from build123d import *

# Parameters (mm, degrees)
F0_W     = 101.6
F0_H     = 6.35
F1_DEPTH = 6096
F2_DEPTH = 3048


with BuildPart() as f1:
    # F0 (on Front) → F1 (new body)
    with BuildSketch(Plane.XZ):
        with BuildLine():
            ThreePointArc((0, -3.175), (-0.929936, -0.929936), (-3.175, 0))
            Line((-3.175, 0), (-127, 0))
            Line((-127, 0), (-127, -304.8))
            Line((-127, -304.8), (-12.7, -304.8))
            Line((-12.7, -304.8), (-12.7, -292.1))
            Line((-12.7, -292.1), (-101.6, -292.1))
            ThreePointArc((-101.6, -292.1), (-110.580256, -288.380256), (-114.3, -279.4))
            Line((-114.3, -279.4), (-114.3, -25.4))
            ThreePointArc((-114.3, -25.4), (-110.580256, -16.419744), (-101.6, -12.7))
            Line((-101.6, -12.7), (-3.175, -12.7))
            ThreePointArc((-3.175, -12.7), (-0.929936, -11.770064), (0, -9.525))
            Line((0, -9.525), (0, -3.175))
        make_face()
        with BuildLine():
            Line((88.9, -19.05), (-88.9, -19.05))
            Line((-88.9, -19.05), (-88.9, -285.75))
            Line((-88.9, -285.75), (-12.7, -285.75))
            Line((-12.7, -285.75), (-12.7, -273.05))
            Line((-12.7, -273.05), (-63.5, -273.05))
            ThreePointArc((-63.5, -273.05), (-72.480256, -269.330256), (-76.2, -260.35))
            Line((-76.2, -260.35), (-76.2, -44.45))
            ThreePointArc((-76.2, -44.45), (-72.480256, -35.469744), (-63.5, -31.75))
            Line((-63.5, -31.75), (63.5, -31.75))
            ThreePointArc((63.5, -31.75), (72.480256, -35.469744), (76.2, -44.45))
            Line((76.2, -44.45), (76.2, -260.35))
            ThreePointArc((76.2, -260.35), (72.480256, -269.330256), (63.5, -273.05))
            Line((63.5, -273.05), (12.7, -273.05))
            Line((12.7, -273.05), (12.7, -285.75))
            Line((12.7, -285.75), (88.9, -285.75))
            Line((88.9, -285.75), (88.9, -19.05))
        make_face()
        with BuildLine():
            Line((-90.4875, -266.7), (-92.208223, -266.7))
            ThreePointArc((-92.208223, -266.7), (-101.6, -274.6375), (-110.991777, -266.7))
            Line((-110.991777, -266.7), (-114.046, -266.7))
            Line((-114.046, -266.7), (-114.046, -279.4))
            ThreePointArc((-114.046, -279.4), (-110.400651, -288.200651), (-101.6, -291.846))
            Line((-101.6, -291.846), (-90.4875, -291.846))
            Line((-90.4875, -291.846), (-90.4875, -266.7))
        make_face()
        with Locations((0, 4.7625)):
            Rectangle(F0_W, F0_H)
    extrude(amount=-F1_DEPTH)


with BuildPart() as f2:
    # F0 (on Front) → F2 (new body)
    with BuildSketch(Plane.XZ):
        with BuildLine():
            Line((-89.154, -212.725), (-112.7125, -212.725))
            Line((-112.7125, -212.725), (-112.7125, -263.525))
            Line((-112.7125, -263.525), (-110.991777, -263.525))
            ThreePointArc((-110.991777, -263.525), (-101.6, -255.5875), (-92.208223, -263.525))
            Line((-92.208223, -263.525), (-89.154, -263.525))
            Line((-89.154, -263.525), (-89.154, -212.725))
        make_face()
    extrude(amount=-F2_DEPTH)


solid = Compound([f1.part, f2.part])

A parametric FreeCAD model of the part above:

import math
import FreeCAD as App
import Part
import Sketcher
from FreeCAD import Vector
Q = App.Units.Quantity


def add_polygon(sketch, points):
    """Adds a closed chain of lines whose ends are joined by coincident constraints."""
    first, n = sketch.GeometryCount, len(points)
    for a, b in zip(points, points[1:] + points[:1]):
        sketch.addGeometry(Part.LineSegment(App.Vector(*a, 0), App.Vector(*b, 0)), False)
    for i in range(n):
        sketch.addConstraint(Sketcher.Constraint("Coincident", first + i, 2, first + (i + 1) % n, 1))

doc = App.newDocument("Part")
body = doc.addObject("PartDesign::Body", "Body")
body.AllowCompound = True

sketch1 = doc.addObject("Sketcher::SketchObject", "Sketch")
body.addObject(sketch1)
sketch1.AttachmentSupport = (doc.XZ_Plane, [""])
sketch1.MapMode = "FlatFace"
sketch1.addGeometry(Part.ArcOfCircle(Part.Circle(Vector(-3.175, -3.175, 0), Vector(0, 0, 1), 3.175), math.radians(0.000002), math.radians(89.999998)), False)
sketch1.addGeometry(Part.LineSegment(Vector(-3.175, 0, 0), Vector(-127, 0, 0)), False)
sketch1.addGeometry(Part.LineSegment(Vector(-127, 0, 0), Vector(-127, -304.8, 0)), False)
sketch1.addGeometry(Part.LineSegment(Vector(-127, -304.8, 0), Vector(-12.7, -304.8, 0)), False)
sketch1.addGeometry(Part.LineSegment(Vector(-12.7, -304.8, 0), Vector(-12.7, -292.1, 0)), False)
sketch1.addGeometry(Part.LineSegment(Vector(-12.7, -292.1, 0), Vector(-101.6, -292.1, 0)), False)
sketch1.addGeometry(Part.ArcOfCircle(Part.Circle(Vector(-101.6, -279.4, 0), Vector(0, 0, 1), 12.7), math.radians(-179.999998), math.radians(-90.000002)), False)
sketch1.addGeometry(Part.LineSegment(Vector(-114.3, -279.4, 0), Vector(-114.3, -25.4, 0)), False)
sketch1.addGeometry(Part.ArcOfCircle(Part.Circle(Vector(-101.6, -25.4, 0), Vector(0, 0, 1), 12.7), math.radians(90.000002), math.radians(179.999998)), False)
sketch1.addGeometry(Part.LineSegment(Vector(-101.6, -12.7, 0), Vector(-3.175, -12.7, 0)), False)
sketch1.addGeometry(Part.ArcOfCircle(Part.Circle(Vector(-3.175, -9.525, 0), Vector(0, 0, 1), 3.175), math.radians(-89.999998), math.radians(-0.000002)), False)
sketch1.addGeometry(Part.LineSegment(Vector(0, -9.525, 0), Vector(0, -3.175, 0)), False)
sketch1.addGeometry(Part.LineSegment(Vector(88.9, -19.05, 0), Vector(-88.9, -19.05, 0)), False)
sketch1.addGeometry(Part.LineSegment(Vector(-88.9, -19.05, 0), Vector(-88.9, -285.75, 0)), False)
sketch1.addGeometry(Part.LineSegment(Vector(-88.9, -285.75, 0), Vector(-12.7, -285.75, 0)), False)
sketch1.addGeometry(Part.LineSegment(Vector(-12.7, -285.75, 0), Vector(-12.7, -273.05, 0)), False)
sketch1.addGeometry(Part.LineSegment(Vector(-12.7, -273.05, 0), Vector(-63.5, -273.05, 0)), False)
sketch1.addGeometry(Part.ArcOfCircle(Part.Circle(Vector(-63.5, -260.35, 0), Vector(0, 0, 1), 12.7), math.radians(-179.999998), math.radians(-90.000002)), False)
sketch1.addGeometry(Part.LineSegment(Vector(-76.2, -260.35, 0), Vector(-76.2, -44.45, 0)), False)
sketch1.addGeometry(Part.ArcOfCircle(Part.Circle(Vector(-63.5, -44.45, 0), Vector(0, 0, 1), 12.7), math.radians(90.000002), math.radians(179.999998)), False)
sketch1.addGeometry(Part.LineSegment(Vector(-63.5, -31.75, 0), Vector(63.5, -31.75, 0)), False)
sketch1.addGeometry(Part.ArcOfCircle(Part.Circle(Vector(63.5, -44.45, 0), Vector(0, 0, 1), 12.7), math.radians(0.000002), math.radians(89.999998)), False)
sketch1.addGeometry(Part.LineSegment(Vector(76.2, -44.45, 0), Vector(76.2, -260.35, 0)), False)
sketch1.addGeometry(Part.ArcOfCircle(Part.Circle(Vector(63.5, -260.35, 0), Vector(0, 0, 1), 12.7), math.radians(-89.999998), math.radians(-0.000002)), False)
sketch1.addGeometry(Part.LineSegment(Vector(63.5, -273.05, 0), Vector(12.7, -273.05, 0)), False)
sketch1.addGeometry(Part.LineSegment(Vector(12.7, -273.05, 0), Vector(12.7, -285.75, 0)), False)
sketch1.addGeometry(Part.LineSegment(Vector(12.7, -285.75, 0), Vector(88.9, -285.75, 0)), False)
sketch1.addGeometry(Part.LineSegment(Vector(88.9, -285.75, 0), Vector(88.9, -19.05, 0)), False)
sketch1.addGeometry(Part.LineSegment(Vector(-90.4875, -266.7, 0), Vector(-92.208223, -266.7, 0)), False)
sketch1.addGeometry(Part.ArcOfCircle(Part.Circle(Vector(-101.6, -265.1125, 0), Vector(0, 0, 1), 9.525), math.radians(-170.40593), math.radians(-9.59407)), False)
sketch1.addGeometry(Part.LineSegment(Vector(-110.991777, -266.7, 0), Vector(-114.046, -266.7, 0)), False)
sketch1.addGeometry(Part.LineSegment(Vector(-114.046, -266.7, 0), Vector(-114.046, -279.4, 0)), False)
sketch1.addGeometry(Part.ArcOfCircle(Part.Circle(Vector(-101.6, -279.4, 0), Vector(0, 0, 1), 12.446), math.radians(180), math.radians(270)), False)
sketch1.addGeometry(Part.LineSegment(Vector(-101.6, -291.846, 0), Vector(-90.4875, -291.846, 0)), False)
sketch1.addGeometry(Part.LineSegment(Vector(-90.4875, -291.846, 0), Vector(-90.4875, -266.7, 0)), False)
add_polygon(sketch1, [(-50.8, 7.9375), (-50.8, 1.5875), (50.8, 1.5875), (50.8, 7.9375)])
sketch1.addConstraint(Sketcher.Constraint("Tangent", 0, 2, 1, 1))
sketch1.addConstraint(Sketcher.Constraint("Coincident", 1, 2, 2, 1))
sketch1.addConstraint(Sketcher.Constraint("Coincident", 2, 2, 3, 1))
sketch1.addConstraint(Sketcher.Constraint("Coincident", 3, 2, 4, 1))
sketch1.addConstraint(Sketcher.Constraint("Coincident", 4, 2, 5, 1))
sketch1.addConstraint(Sketcher.Constraint("Tangent", 5, 2, 6, 2))
sketch1.addConstraint(Sketcher.Constraint("Tangent", 6, 1, 7, 1))
sketch1.addConstraint(Sketcher.Constraint("Tangent", 7, 2, 8, 2))
sketch1.addConstraint(Sketcher.Constraint("Tangent", 8, 1, 9, 1))
sketch1.addConstraint(Sketcher.Constraint("Tangent", 9, 2, 10, 1))
sketch1.addConstraint(Sketcher.Constraint("Tangent", 10, 2, 11, 1))
sketch1.addConstraint(Sketcher.Constraint("Tangent", 11, 2, 0, 1))
sketch1.addConstraint(Sketcher.Constraint("Coincident", 12, 2, 13, 1))
sketch1.addConstraint(Sketcher.Constraint("Coincident", 13, 2, 14, 1))
sketch1.addConstraint(Sketcher.Constraint("Coincident", 14, 2, 15, 1))
sketch1.addConstraint(Sketcher.Constraint("Coincident", 15, 2, 16, 1))
sketch1.addConstraint(Sketcher.Constraint("Tangent", 16, 2, 17, 2))
sketch1.addConstraint(Sketcher.Constraint("Tangent", 17, 1, 18, 1))
sketch1.addConstraint(Sketcher.Constraint("Tangent", 18, 2, 19, 2))
sketch1.addConstraint(Sketcher.Constraint("Tangent", 19, 1, 20, 1))
sketch1.addConstraint(Sketcher.Constraint("Tangent", 20, 2, 21, 2))
sketch1.addConstraint(Sketcher.Constraint("Tangent", 21, 1, 22, 1))
sketch1.addConstraint(Sketcher.Constraint("Tangent", 22, 2, 23, 2))
sketch1.addConstraint(Sketcher.Constraint("Tangent", 23, 1, 24, 1))
sketch1.addConstraint(Sketcher.Constraint("Coincident", 24, 2, 25, 1))
sketch1.addConstraint(Sketcher.Constraint("Coincident", 25, 2, 26, 1))
sketch1.addConstraint(Sketcher.Constraint("Coincident", 26, 2, 27, 1))
sketch1.addConstraint(Sketcher.Constraint("Coincident", 27, 2, 12, 1))
sketch1.addConstraint(Sketcher.Constraint("Coincident", 28, 2, 29, 2))
sketch1.addConstraint(Sketcher.Constraint("Coincident", 29, 1, 30, 1))
sketch1.addConstraint(Sketcher.Constraint("Coincident", 30, 2, 31, 1))
sketch1.addConstraint(Sketcher.Constraint("Tangent", 31, 2, 32, 1))
sketch1.addConstraint(Sketcher.Constraint("Tangent", 32, 2, 33, 1))
sketch1.addConstraint(Sketcher.Constraint("Coincident", 33, 2, 34, 1))
sketch1.addConstraint(Sketcher.Constraint("Coincident", 34, 2, 28, 1))
sketch1.addConstraint(Sketcher.Constraint("Horizontal", 1))
sketch1.addConstraint(Sketcher.Constraint("Vertical", 2))
sketch1.addConstraint(Sketcher.Constraint("Horizontal", 3))
sketch1.addConstraint(Sketcher.Constraint("Vertical", 4))
sketch1.addConstraint(Sketcher.Constraint("Horizontal", 5))
sketch1.addConstraint(Sketcher.Constraint("Vertical", 7))
sketch1.addConstraint(Sketcher.Constraint("Horizontal", 9))
sketch1.addConstraint(Sketcher.Constraint("Vertical", 11))
sketch1.addConstraint(Sketcher.Constraint("Horizontal", 12))
sketch1.addConstraint(Sketcher.Constraint("Vertical", 13))
sketch1.addConstraint(Sketcher.Constraint("Horizontal", 14))
sketch1.addConstraint(Sketcher.Constraint("Vertical", 15))
sketch1.addConstraint(Sketcher.Constraint("Horizontal", 16))
sketch1.addConstraint(Sketcher.Constraint("Vertical", 18))
sketch1.addConstraint(Sketcher.Constraint("Horizontal", 20))
sketch1.addConstraint(Sketcher.Constraint("Vertical", 22))
sketch1.addConstraint(Sketcher.Constraint("Horizontal", 24))
sketch1.addConstraint(Sketcher.Constraint("Vertical", 25))
sketch1.addConstraint(Sketcher.Constraint("Horizontal", 26))
sketch1.addConstraint(Sketcher.Constraint("Vertical", 27))
sketch1.addConstraint(Sketcher.Constraint("Horizontal", 28))
sketch1.addConstraint(Sketcher.Constraint("Horizontal", 30))
sketch1.addConstraint(Sketcher.Constraint("Vertical", 31))
sketch1.addConstraint(Sketcher.Constraint("Horizontal", 33))
sketch1.addConstraint(Sketcher.Constraint("Vertical", 34))
sketch1.addConstraint(Sketcher.Constraint("Vertical", 35))
sketch1.addConstraint(Sketcher.Constraint("Horizontal", 36))
sketch1.addConstraint(Sketcher.Constraint("Vertical", 37))
sketch1.addConstraint(Sketcher.Constraint("Horizontal", 38))
sketch1.addConstraint(Sketcher.Constraint("Coincident", 32, 3, 6, 3))
sketch1.addConstraint(Sketcher.Constraint("Equal", 6, 8))
sketch1.addConstraint(Sketcher.Constraint("Equal", 0, 10))
sketch1.addConstraint(Sketcher.Constraint("Equal", 8, 17))
sketch1.addConstraint(Sketcher.Constraint("Equal", 17, 19))
sketch1.addConstraint(Sketcher.Constraint("Equal", 19, 21))
sketch1.addConstraint(Sketcher.Constraint("Equal", 21, 23))
sketch1.addConstraint(Sketcher.Constraint("Symmetric", 17, 3, 23, 3, -2))
sketch1.addConstraint(Sketcher.Constraint("Symmetric", 14, 2, 25, 2, -2))
sketch1.addConstraint(Sketcher.Constraint("PointOnObject", 0, 2, -1))
sketch1.addConstraint(Sketcher.Constraint("PointOnObject", 10, 2, -2))
sketch1.addConstraint(Sketcher.Constraint("Horizontal", 28, 2, 29, 1))
sketch1.addConstraint(Sketcher.Constraint("Vertical", 8, 3, 29, 3))
sketch1.addConstraint(Sketcher.Constraint("Vertical", 4, 2, 14, 2))
sketch1.addConstraint(Sketcher.Constraint("Equal", 14, 26))
sketch1.addConstraint(Sketcher.Constraint("Equal", 4, 15))
sketch1.addConstraint(Sketcher.Constraint("Equal", 25, 31))
sketch1.addConstraint(Sketcher.Constraint("Equal", 11, 35))
sketch1.addConstraint(Sketcher.Constraint("Radius", 6, Q("0.5 in")))
sketch1.addConstraint(Sketcher.Constraint("DistanceX", 12, 2, 12, 1, Q("7 in")))
sketch1.addConstraint(Sketcher.Constraint("DistanceX", 14, 1, 14, 2, Q("3 in")))
sketch1.addConstraint(Sketcher.Constraint("DistanceX", 16, 2, 16, 1, Q("2 in")))
sketch1.addConstraint(Sketcher.Constraint("DistanceX", 36, 1, 36, 2, Q("4 in")))
sketch1.addConstraint(Sketcher.Constraint("DistanceY", 2, 2, 2, 1, Q("12 in")))
sketch1.addConstraint(Sketcher.Constraint("DistanceY", 7, 1, 7, 2, Q("10 in")))
sketch1.addConstraint(Sketcher.Constraint("Radius", 32, Q("0.49 in")))
sketch1.addConstraint(Sketcher.Constraint("DistanceX", 3, 1, 3, 2, Q("4.5 in")))
sketch1.addConstraint(Sketcher.Constraint("DistanceX", 5, 2, 5, 1, Q("3.5 in")))
sketch1.addConstraint(Sketcher.Constraint("DistanceY", 4, 1, 4, 2, Q("0.5 in")))
sketch1.addConstraint(Sketcher.Constraint("DistanceY", 13, 2, 13, 1, Q("10.5 in")))
sketch1.addConstraint(Sketcher.Constraint("DistanceY", 18, 1, 18, 2, Q("8.5 in")))
sketch1.addConstraint(Sketcher.Constraint("DistanceX", 35, 2, -1, 1, Q("2 in")))
sketch1.addConstraint(Sketcher.Constraint("Radius", 0, Q("0.125 in")))
sketch1.addConstraint(Sketcher.Constraint("Radius", 29, Q("0.375 in")))
sketch1.addConstraint(Sketcher.Constraint("DistanceX", 33, 1, 33, 2, Q("0.4375 in")))
sketch1.addConstraint(Sketcher.Constraint("DistanceY", 17, 3, -1, 1, Q("10.25 in")))
sketch1.addConstraint(Sketcher.Constraint("DistanceY", 29, 3, -1, 1, Q("10.4375 in")))
sketch1.addConstraint(Sketcher.Constraint("DistanceY", -1, 1, 35, 2, Q("0.0625 in")))
pad1 = doc.addObject("PartDesign::Pad", "Pad")
body.addObject(pad1)
pad1.Profile = sketch1
pad1.Length = Q("240 in")
pad1.Reversed = True
body2 = doc.addObject("PartDesign::Body", "Body001")

sketch2 = doc.addObject("Sketcher::SketchObject", "Sketch001")
body2.addObject(sketch2)
sketch2.AttachmentSupport = (doc.getObject("XZ_Plane001"), [""])
sketch2.MapMode = "FlatFace"
sketch2.addGeometry(Part.LineSegment(Vector(-89.154, -212.725, 0), Vector(-112.7125, -212.725, 0)), False)
sketch2.addGeometry(Part.LineSegment(Vector(-112.7125, -212.725, 0), Vector(-112.7125, -263.525, 0)), False)
sketch2.addGeometry(Part.LineSegment(Vector(-112.7125, -263.525, 0), Vector(-110.991777, -263.525, 0)), False)
sketch2.addGeometry(Part.ArcOfCircle(Part.Circle(Vector(-101.6, -265.1125, 0), Vector(0, 0, 1), 9.525), math.radians(9.59407), math.radians(170.40593)), False)
sketch2.addGeometry(Part.LineSegment(Vector(-92.208223, -263.525, 0), Vector(-89.154, -263.525, 0)), False)
sketch2.addGeometry(Part.LineSegment(Vector(-89.154, -263.525, 0), Vector(-89.154, -212.725, 0)), False)
sketch2.addConstraint(Sketcher.Constraint("Coincident", 0, 2, 1, 1))
sketch2.addConstraint(Sketcher.Constraint("Coincident", 1, 2, 2, 1))
sketch2.addConstraint(Sketcher.Constraint("Coincident", 2, 2, 3, 2))
sketch2.addConstraint(Sketcher.Constraint("Coincident", 3, 1, 4, 1))
sketch2.addConstraint(Sketcher.Constraint("Coincident", 4, 2, 5, 1))
sketch2.addConstraint(Sketcher.Constraint("Coincident", 5, 2, 0, 1))
sketch2.addConstraint(Sketcher.Constraint("Horizontal", 0))
sketch2.addConstraint(Sketcher.Constraint("Vertical", 1))
sketch2.addConstraint(Sketcher.Constraint("Horizontal", 2))
sketch2.addConstraint(Sketcher.Constraint("Horizontal", 4))
sketch2.addConstraint(Sketcher.Constraint("Vertical", 5))
sketch2.addConstraint(Sketcher.Constraint("Horizontal", 2, 2, 3, 1))
sketch2.addConstraint(Sketcher.Constraint("DistanceY", 1, 2, 1, 1, Q("2 in")))
sketch2.addConstraint(Sketcher.Constraint("DistanceX", 3, 3, -1, 1, Q("4 in")))
sketch2.addConstraint(Sketcher.Constraint("Radius", 3, Q("0.375 in")))
sketch2.addConstraint(Sketcher.Constraint("DistanceX", 4, 2, -1, 1, Q("3.51 in")))
sketch2.addConstraint(Sketcher.Constraint("DistanceX", 0, 2, 0, 1, Q("0.9275 in")))
sketch2.addConstraint(Sketcher.Constraint("DistanceY", 3, 3, -1, 1, Q("10.4375 in")))
sketch2.addConstraint(Sketcher.Constraint("DistanceY", 0, 2, -1, 1, Q("8.375 in")))
pad2 = doc.addObject("PartDesign::Pad", "Pad001")
body2.addObject(pad2)
pad2.Profile = sketch2
pad2.Length = Q("120 in")
pad2.Reversed = True

doc.recompute()
